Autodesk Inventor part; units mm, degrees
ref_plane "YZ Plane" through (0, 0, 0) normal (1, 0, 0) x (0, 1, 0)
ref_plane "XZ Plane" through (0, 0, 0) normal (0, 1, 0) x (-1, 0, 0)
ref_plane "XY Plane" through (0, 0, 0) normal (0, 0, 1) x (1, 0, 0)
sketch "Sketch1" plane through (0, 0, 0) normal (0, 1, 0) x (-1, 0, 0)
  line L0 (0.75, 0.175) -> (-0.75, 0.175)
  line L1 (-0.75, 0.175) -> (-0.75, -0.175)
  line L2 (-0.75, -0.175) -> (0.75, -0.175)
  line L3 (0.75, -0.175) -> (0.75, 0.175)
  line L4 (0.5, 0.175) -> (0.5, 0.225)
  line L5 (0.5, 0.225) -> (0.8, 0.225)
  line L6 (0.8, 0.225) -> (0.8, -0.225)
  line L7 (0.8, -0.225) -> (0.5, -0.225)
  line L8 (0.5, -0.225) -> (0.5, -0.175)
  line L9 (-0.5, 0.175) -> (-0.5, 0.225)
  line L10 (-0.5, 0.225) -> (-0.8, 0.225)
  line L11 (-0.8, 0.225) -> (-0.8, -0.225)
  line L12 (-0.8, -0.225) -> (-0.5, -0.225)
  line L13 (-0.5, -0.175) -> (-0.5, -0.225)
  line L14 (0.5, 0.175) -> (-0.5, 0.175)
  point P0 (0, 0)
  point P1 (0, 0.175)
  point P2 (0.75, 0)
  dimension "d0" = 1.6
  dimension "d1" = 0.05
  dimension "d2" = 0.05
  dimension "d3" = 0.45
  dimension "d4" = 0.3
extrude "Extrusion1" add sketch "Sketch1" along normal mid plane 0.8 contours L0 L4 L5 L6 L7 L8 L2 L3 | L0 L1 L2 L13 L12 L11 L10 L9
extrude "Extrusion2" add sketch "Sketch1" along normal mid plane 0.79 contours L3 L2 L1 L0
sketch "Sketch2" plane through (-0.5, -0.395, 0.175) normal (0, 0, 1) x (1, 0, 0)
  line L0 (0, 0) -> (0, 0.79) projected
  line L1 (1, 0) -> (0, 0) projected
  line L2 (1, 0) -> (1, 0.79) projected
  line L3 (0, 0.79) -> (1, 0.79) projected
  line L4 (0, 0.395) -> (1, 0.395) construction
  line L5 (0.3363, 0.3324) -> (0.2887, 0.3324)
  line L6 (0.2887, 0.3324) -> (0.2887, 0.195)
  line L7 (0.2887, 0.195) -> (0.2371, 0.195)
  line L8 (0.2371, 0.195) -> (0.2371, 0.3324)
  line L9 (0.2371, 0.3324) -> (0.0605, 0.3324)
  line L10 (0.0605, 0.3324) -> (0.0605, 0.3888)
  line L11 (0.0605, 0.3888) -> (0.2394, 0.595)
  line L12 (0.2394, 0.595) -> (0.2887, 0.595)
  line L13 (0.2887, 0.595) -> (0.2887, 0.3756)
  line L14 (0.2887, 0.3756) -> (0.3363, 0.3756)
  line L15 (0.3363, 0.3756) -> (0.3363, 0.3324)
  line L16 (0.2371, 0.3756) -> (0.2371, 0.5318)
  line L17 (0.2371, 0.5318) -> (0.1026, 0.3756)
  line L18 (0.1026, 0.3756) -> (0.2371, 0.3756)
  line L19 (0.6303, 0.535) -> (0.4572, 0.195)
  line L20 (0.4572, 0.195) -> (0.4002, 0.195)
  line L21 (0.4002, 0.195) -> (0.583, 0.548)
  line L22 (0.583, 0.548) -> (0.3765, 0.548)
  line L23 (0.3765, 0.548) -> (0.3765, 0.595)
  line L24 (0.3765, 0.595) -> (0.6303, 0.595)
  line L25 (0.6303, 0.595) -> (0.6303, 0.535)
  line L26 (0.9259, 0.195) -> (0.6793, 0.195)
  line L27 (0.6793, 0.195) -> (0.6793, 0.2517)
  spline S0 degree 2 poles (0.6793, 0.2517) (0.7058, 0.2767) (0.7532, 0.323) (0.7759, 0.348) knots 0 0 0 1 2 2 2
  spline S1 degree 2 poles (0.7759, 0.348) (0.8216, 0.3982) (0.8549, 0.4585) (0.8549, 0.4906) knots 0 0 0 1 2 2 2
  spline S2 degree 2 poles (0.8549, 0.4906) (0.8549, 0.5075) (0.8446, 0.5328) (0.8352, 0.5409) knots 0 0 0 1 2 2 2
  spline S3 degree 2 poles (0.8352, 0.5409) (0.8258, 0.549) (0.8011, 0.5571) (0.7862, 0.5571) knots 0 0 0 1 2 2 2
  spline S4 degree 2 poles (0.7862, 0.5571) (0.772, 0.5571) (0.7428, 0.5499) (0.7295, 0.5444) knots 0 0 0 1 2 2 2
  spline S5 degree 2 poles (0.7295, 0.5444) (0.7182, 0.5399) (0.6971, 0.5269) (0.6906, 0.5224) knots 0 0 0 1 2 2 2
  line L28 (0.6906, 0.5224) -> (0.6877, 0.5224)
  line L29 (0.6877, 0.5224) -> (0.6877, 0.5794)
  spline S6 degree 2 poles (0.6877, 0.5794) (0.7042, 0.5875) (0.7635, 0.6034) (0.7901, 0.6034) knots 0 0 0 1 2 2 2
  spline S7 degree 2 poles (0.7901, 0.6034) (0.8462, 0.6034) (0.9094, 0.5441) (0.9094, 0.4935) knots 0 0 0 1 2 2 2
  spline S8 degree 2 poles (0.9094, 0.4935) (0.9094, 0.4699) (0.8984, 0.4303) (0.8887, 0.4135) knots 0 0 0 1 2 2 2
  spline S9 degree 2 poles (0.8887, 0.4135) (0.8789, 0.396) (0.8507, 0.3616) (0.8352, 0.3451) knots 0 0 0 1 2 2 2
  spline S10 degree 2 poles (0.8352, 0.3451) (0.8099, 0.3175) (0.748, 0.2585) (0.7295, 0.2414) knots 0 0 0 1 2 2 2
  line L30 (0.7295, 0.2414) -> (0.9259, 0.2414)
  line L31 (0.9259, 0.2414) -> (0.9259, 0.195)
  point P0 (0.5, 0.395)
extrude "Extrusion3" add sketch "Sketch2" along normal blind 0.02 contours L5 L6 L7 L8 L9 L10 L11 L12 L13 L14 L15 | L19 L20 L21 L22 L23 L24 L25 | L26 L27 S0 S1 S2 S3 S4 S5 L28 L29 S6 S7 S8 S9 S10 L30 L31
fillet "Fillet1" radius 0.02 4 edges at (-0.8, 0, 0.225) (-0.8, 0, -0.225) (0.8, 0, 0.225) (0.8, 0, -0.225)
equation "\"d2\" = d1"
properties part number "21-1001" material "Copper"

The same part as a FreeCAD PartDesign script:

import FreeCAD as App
import Part
import Sketcher
Q = App.Units.Quantity


def edges_at(feature, points):
    """Names of the edges that pass closest to the given points."""
    edges = feature.Shape.Edges
    near = lambda p: min(range(len(edges)), key=lambda i: edges[i].distToShape(Part.Vertex(*p))[0])
    return sorted({f"Edge{near(p) + 1}" for p in points})


def add_polygon(sketch, points):
    """Adds a closed chain of lines whose ends are joined by coincident constraints."""
    first, n = sketch.GeometryCount, len(points)
    for a, b in zip(points, points[1:] + points[:1]):
        sketch.addGeometry(Part.LineSegment(App.Vector(*a, 0), App.Vector(*b, 0)), False)
    for i in range(n):
        sketch.addConstraint(Sketcher.Constraint("Coincident", first + i, 2, first + (i + 1) % n, 1))

doc = App.newDocument("Part")
body = doc.addObject("PartDesign::Body", "Body")
body.AllowCompound = True

# Sketch on XZ plane
sketch1 = body.newObject("Sketcher::SketchObject", "Sketch")
sketch1.AttachmentSupport = (doc.getObject("XZ_Plane"), [""])
sketch1.MapMode = "FlatFace"
add_polygon(sketch1, [(-0.5, 0.17), (-0.75, 0.17), (-0.75, -0.17), (-0.5, -0.17), (-0.5, -0.23), (-0.8, -0.23), (-0.8, 0.23), (-0.5, 0.23)])  # lines 0-7
add_polygon(sketch1, [(0.75, 0.17), (0.5, 0.17), (0.5, 0.23), (0.8, 0.23), (0.8, -0.23), (0.5, -0.23), (0.5, -0.17), (0.75, -0.17)])  # lines 8-15
sketch1.addConstraint(Sketcher.Constraint("Horizontal", 0))
sketch1.addConstraint(Sketcher.Constraint("Vertical", 1))
sketch1.addConstraint(Sketcher.Constraint("Horizontal", 2))
sketch1.addConstraint(Sketcher.Constraint("Vertical", 3))
sketch1.addConstraint(Sketcher.Constraint("Horizontal", 4))
sketch1.addConstraint(Sketcher.Constraint("Vertical", 5))
sketch1.addConstraint(Sketcher.Constraint("Horizontal", 6))
sketch1.addConstraint(Sketcher.Constraint("Vertical", 7))
sketch1.addConstraint(Sketcher.Constraint("Horizontal", 8))
sketch1.addConstraint(Sketcher.Constraint("Vertical", 9))
sketch1.addConstraint(Sketcher.Constraint("Horizontal", 10))
sketch1.addConstraint(Sketcher.Constraint("Vertical", 11))
sketch1.addConstraint(Sketcher.Constraint("Horizontal", 12))
sketch1.addConstraint(Sketcher.Constraint("Vertical", 13))
sketch1.addConstraint(Sketcher.Constraint("Horizontal", 14))
sketch1.addConstraint(Sketcher.Constraint("Vertical", 15))
sketch1.addConstraint(Sketcher.Constraint("Symmetric", 2, 2, 8, 2, -1, 1))
sketch1.addConstraint(Sketcher.Constraint("Symmetric", 4, 2, 10, 2, -1, 1))
sketch1.addConstraint(Sketcher.Constraint("Symmetric", 6, 2, 12, 2, -1, 1))
sketch1.addConstraint(Sketcher.Constraint("Symmetric", 0, 2, 14, 2, -1, 1))
sketch1.addConstraint(Sketcher.Constraint("Symmetric", 7, 2, 8, 2, -2))
sketch1.addConstraint(Sketcher.Constraint("Horizontal", 6, 2, 9, 2))
sketch1.addConstraint(Sketcher.Constraint("DistanceX", 4, 2, 4, 1, 0.3))
sketch1.addConstraint(Sketcher.Constraint("DistanceY", 3, 2, 3, 1, 0.05))
sketch1.addConstraint(Sketcher.Constraint("DistanceY", 5, 1, 5, 2, 0.45))
sketch1.addConstraint(Sketcher.Constraint("DistanceX", 4, 2, 1, 2, 0.05))
sketch1.addConstraint(Sketcher.Constraint("DistanceX", 7, 2, 8, 2, 1.0))
pad1 = body.newObject("PartDesign::Pad", "Pad")
pad1.Profile = sketch1
pad1.Length = 0.8
pad1.Midplane = True

# Sketch on XZ plane
sketch2 = body.newObject("Sketcher::SketchObject", "Sketch001")
sketch2.AttachmentSupport = (doc.getObject("XZ_Plane"), [""])
sketch2.MapMode = "FlatFace"
add_polygon(sketch2, [(-0.75, -0.17), (-0.75, 0.17), (0.75, 0.17), (0.75, -0.17)])  # lines 0-3
sketch2.addConstraint(Sketcher.Constraint("Vertical", 0))
sketch2.addConstraint(Sketcher.Constraint("Horizontal", 1))
sketch2.addConstraint(Sketcher.Constraint("Vertical", 2))
sketch2.addConstraint(Sketcher.Constraint("Horizontal", 3))
sketch2.addConstraint(Sketcher.Constraint("Symmetric", 0, 2, 2, 2, -1, 1))
sketch2.addConstraint(Sketcher.Constraint("DistanceX", 1, 1, 1, 2, 1.5))
sketch2.addConstraint(Sketcher.Constraint("DistanceY", 0, 1, 0, 2, 0.35))
pad2 = body.newObject("PartDesign::Pad", "Pad001")
pad2.Profile = sketch2
pad2.Length = 0.79
pad2.Midplane = True

# Sketch on XY plane
sketch3 = body.newObject("Sketcher::SketchObject", "Sketch002")
sketch3.AttachmentSupport = (doc.getObject("XY_Plane"), [""])
sketch3.MapMode = "FlatFace"
sketch3.AttachmentOffset = App.Placement(App.Vector(0, 0, 0.175), App.Rotation())
add_polygon(sketch3, [(-0.2113, -0.0626), (-0.1637, -0.0626), (-0.1637, -0.0194), (-0.2113, -0.0194), (-0.2113, 0.2), (-0.2606, 0.2), (-0.4395, -0.0062), (-0.4395, -0.0626), (-0.2629, -0.0626), (-0.2629, -0.2), (-0.2113, -0.2)])  # lines 0-10
add_polygon(sketch3, [(-0.2629, 0.1368), (-0.2629, -0.0194), (-0.3974, -0.0194)])  # lines 11-13
add_polygon(sketch3, [(-0.0428, -0.2), (0.1303, 0.14), (0.1303, 0.2), (-0.1235, 0.2), (-0.1235, 0.153), (0.083, 0.153), (-0.0998, -0.2)])  # lines 14-20
sketch3.addGeometry(Part.LineSegment(App.Vector(0.1793, -0.2, 0), App.Vector(0.4259, -0.2, 0)), False)  # 21
sketch3.addGeometry(Part.LineSegment(App.Vector(0.4259, -0.2, 0), App.Vector(0.4259, -0.1536, 0)), False)  # 22
sketch3.addGeometry(Part.LineSegment(App.Vector(0.4259, -0.1536, 0), App.Vector(0.2295, -0.1536, 0)), False)  # 23
sketch3.addGeometry(Part.BSplineCurve([App.Vector(0.3352, -0.0499, 0), App.Vector(0.3099, -0.0775, 0), App.Vector(0.248, -0.1365, 0), App.Vector(0.2295, -0.1536, 0)], [3, 1, 3], [0, 1, 2], False, 2, [1, 1, 1, 1], False), False)  # 24
sketch3.addGeometry(Part.BSplineCurve([App.Vector(0.3887, 0.0185, 0), App.Vector(0.3789, 0.001, 0), App.Vector(0.3507, -0.0334, 0), App.Vector(0.3352, -0.0499, 0)], [3, 1, 3], [0, 1, 2], False, 2, [1, 1, 1, 1], False), False)  # 25
sketch3.addGeometry(Part.BSplineCurve([App.Vector(0.4094, 0.0985, 0), App.Vector(0.4094, 0.0749, 0), App.Vector(0.3984, 0.0353, 0), App.Vector(0.3887, 0.0185, 0)], [3, 1, 3], [0, 1, 2], False, 2, [1, 1, 1, 1], False), False)  # 26
sketch3.addGeometry(Part.BSplineCurve([App.Vector(0.2901, 0.2084, 0), App.Vector(0.3462, 0.2084, 0), App.Vector(0.4094, 0.1491, 0), App.Vector(0.4094, 0.0985, 0)], [3, 1, 3], [0, 1, 2], False, 2, [1, 1, 1, 1], False), False)  # 27
sketch3.addGeometry(Part.BSplineCurve([App.Vector(0.1877, 0.1844, 0), App.Vector(0.2042, 0.1925, 0), App.Vector(0.2635, 0.2084, 0), App.Vector(0.2901, 0.2084, 0)], [3, 1, 3], [0, 1, 2], False, 2, [1, 1, 1, 1], False), False)  # 28
sketch3.addGeometry(Part.LineSegment(App.Vector(0.1877, 0.1844, 0), App.Vector(0.1877, 0.1274, 0)), False)  # 29
sketch3.addGeometry(Part.LineSegment(App.Vector(0.1877, 0.1274, 0), App.Vector(0.1906, 0.1274, 0)), False)  # 30
sketch3.addGeometry(Part.BSplineCurve([App.Vector(0.2295, 0.1494, 0), App.Vector(0.2182, 0.1449, 0), App.Vector(0.1971, 0.1319, 0), App.Vector(0.1906, 0.1274, 0)], [3, 1, 3], [0, 1, 2], False, 2, [1, 1, 1, 1], False), False)  # 31
sketch3.addGeometry(Part.BSplineCurve([App.Vector(0.2862, 0.1621, 0), App.Vector(0.272, 0.1621, 0), App.Vector(0.2428, 0.1549, 0), App.Vector(0.2295, 0.1494, 0)], [3, 1, 3], [0, 1, 2], False, 2, [1, 1, 1, 1], False), False)  # 32
sketch3.addGeometry(Part.BSplineCurve([App.Vector(0.3352, 0.1459, 0), App.Vector(0.3258, 0.154, 0), App.Vector(0.3011, 0.1621, 0), App.Vector(0.2862, 0.1621, 0)], [3, 1, 3], [0, 1, 2], False, 2, [1, 1, 1, 1], False), False)  # 33
sketch3.addGeometry(Part.BSplineCurve([App.Vector(0.3549, 0.0956, 0), App.Vector(0.3549, 0.1125, 0), App.Vector(0.3446, 0.1378, 0), App.Vector(0.3352, 0.1459, 0)], [3, 1, 3], [0, 1, 2], False, 2, [1, 1, 1, 1], False), False)  # 34
sketch3.addGeometry(Part.BSplineCurve([App.Vector(0.2759, -0.047, 0), App.Vector(0.3216, 0.0032, 0), App.Vector(0.3549, 0.0635, 0), App.Vector(0.3549, 0.0956, 0)], [3, 1, 3], [0, 1, 2], False, 2, [1, 1, 1, 1], False), False)  # 35
sketch3.addGeometry(Part.BSplineCurve([App.Vector(0.1793, -0.1433, 0), App.Vector(0.2058, -0.1183, 0), App.Vector(0.2532, -0.072, 0), App.Vector(0.2759, -0.047, 0)], [3, 1, 3], [0, 1, 2], False, 2, [1, 1, 1, 1], False), False)  # 36
sketch3.addGeometry(Part.LineSegment(App.Vector(0.1793, -0.1433, 0), App.Vector(0.1793, -0.2, 0)), False)  # 37
sketch3.addConstraint(Sketcher.Constraint("Block", 24))
sketch3.addConstraint(Sketcher.Constraint("Block", 25))
sketch3.addConstraint(Sketcher.Constraint("Block", 26))
sketch3.addConstraint(Sketcher.Constraint("Block", 27))
sketch3.addConstraint(Sketcher.Constraint("Block", 28))
sketch3.addConstraint(Sketcher.Constraint("Block", 31))
sketch3.addConstraint(Sketcher.Constraint("Block", 32))
sketch3.addConstraint(Sketcher.Constraint("Block", 33))
sketch3.addConstraint(Sketcher.Constraint("Block", 34))
sketch3.addConstraint(Sketcher.Constraint("Block", 35))
sketch3.addConstraint(Sketcher.Constraint("Block", 36))
sketch3.addConstraint(Sketcher.Constraint("Coincident", 21, 2, 22, 1))
sketch3.addConstraint(Sketcher.Constraint("Coincident", 22, 2, 23, 1))
sketch3.addConstraint(Sketcher.Constraint("Coincident", 23, 2, 24, 2))
sketch3.addConstraint(Sketcher.Constraint("Coincident", 28, 1, 29, 1))
sketch3.addConstraint(Sketcher.Constraint("Coincident", 29, 2, 30, 1))
sketch3.addConstraint(Sketcher.Constraint("Coincident", 30, 2, 31, 2))
sketch3.addConstraint(Sketcher.Constraint("Coincident", 36, 1, 37, 1))
sketch3.addConstraint(Sketcher.Constraint("Coincident", 37, 2, 21, 1))
sketch3.addConstraint(Sketcher.Constraint("Horizontal", 0))
sketch3.addConstraint(Sketcher.Constraint("Vertical", 1))
sketch3.addConstraint(Sketcher.Constraint("Horizontal", 2))
sketch3.addConstraint(Sketcher.Constraint("Vertical", 3))
sketch3.addConstraint(Sketcher.Constraint("Horizontal", 4))
sketch3.addConstraint(Sketcher.Constraint("Vertical", 6))
sketch3.addConstraint(Sketcher.Constraint("Horizontal", 7))
sketch3.addConstraint(Sketcher.Constraint("Vertical", 8))
sketch3.addConstraint(Sketcher.Constraint("Horizontal", 9))
sketch3.addConstraint(Sketcher.Constraint("Vertical", 10))
sketch3.addConstraint(Sketcher.Constraint("Vertical", 11))
sketch3.addConstraint(Sketcher.Constraint("Horizontal", 12))
sketch3.addConstraint(Sketcher.Constraint("Vertical", 15))
sketch3.addConstraint(Sketcher.Constraint("Horizontal", 16))
sketch3.addConstraint(Sketcher.Constraint("Vertical", 17))
sketch3.addConstraint(Sketcher.Constraint("Horizontal", 18))
sketch3.addConstraint(Sketcher.Constraint("Horizontal", 20))
sketch3.addConstraint(Sketcher.Constraint("Horizontal", 21))
sketch3.addConstraint(Sketcher.Constraint("Vertical", 22))
sketch3.addConstraint(Sketcher.Constraint("Horizontal", 23))
sketch3.addConstraint(Sketcher.Constraint("Vertical", 29))
sketch3.addConstraint(Sketcher.Constraint("Horizontal", 30))
sketch3.addConstraint(Sketcher.Constraint("Vertical", 37))
sketch3.addConstraint(Sketcher.Constraint("Symmetric", 3, 2, 9, 2, -1))
sketch3.addConstraint(Sketcher.Constraint("Horizontal", 0, 2, 6, 2))
sketch3.addConstraint(Sketcher.Constraint("Horizontal", 2, 2, 11, 2))
sketch3.addConstraint(Sketcher.Constraint("Horizontal", 4, 2, 15, 2))
sketch3.addConstraint(Sketcher.Constraint("Horizontal", 9, 2, 19, 2))
sketch3.addConstraint(Sketcher.Constraint("Horizontal", 20, 2, 21, 2))
sketch3.addConstraint(Sketcher.Constraint("Vertical", 8, 2, 11, 2))
sketch3.addConstraint(Sketcher.Constraint("Equal", 20, 29))
sketch3.addConstraint(Sketcher.Constraint("DistanceY", 15, 1, 15, 2, 0.06))
sketch3.addConstraint(Sketcher.Constraint("DistanceY", -1, 1, 3, 2, 0.2))
sketch3.addConstraint(Sketcher.Constraint("Angle", 13, Q("49.269 deg")))
sketch3.addConstraint(Sketcher.Constraint("DistanceY", 17, 2, 17, 1, 0.047))
sketch3.addConstraint(Sketcher.Constraint("Distance", 5, 0.273))
sketch3.addConstraint(Sketcher.Constraint("DistanceX", 0, 1, 0, 2, 0.0476))
sketch3.addConstraint(Sketcher.Constraint("DistanceX", 4, 2, 4, 1, 0.0493))
sketch3.addConstraint(Sketcher.Constraint("DistanceX", 7, 1, 7, 2, 0.1766))
sketch3.addConstraint(Sketcher.Constraint("DistanceX", 9, 1, 9, 2, 0.0516))
sketch3.addConstraint(Sketcher.Constraint("DistanceX", 12, 2, 12, 1, 0.1345))
sketch3.addConstraint(Sketcher.Constraint("DistanceX", 16, 2, 16, 1, 0.2538))
sketch3.addConstraint(Sketcher.Constraint("DistanceX", 18, 1, 18, 2, 0.2065))
sketch3.addConstraint(Sketcher.Constraint("DistanceX", 21, 1, 21, 2, 0.2466))
sketch3.addConstraint(Sketcher.Constraint("DistanceY", 1, 1, 1, 2, 0.0432))
sketch3.addConstraint(Sketcher.Constraint("DistanceY", 3, 1, 3, 2, 0.2194))
sketch3.addConstraint(Sketcher.Constraint("DistanceX", 7, 2, -1, 1, 0.263))
sketch3.addConstraint(Sketcher.Constraint("DistanceX", -1, 1, 18, 2, 0.083))
sketch3.addConstraint(Sketcher.Constraint("DistanceX", 0, 2, 19, 2, 0.064))
pad3 = body.newObject("PartDesign::Pad", "Pad002")
pad3.Profile = sketch3
pad3.Length = 0.02
doc.recompute()

fillet = body.newObject("PartDesign::Fillet", "Fillet")
fillet.Base = (pad3, edges_at(pad3, [
    (-0.8, 0, 0.225),
    (-0.8, 0, -0.225),
    (0.8, 0, 0.225),
    (0.8, 0, -0.225),
]))
fillet.Radius = 0.02

doc.recompute()
